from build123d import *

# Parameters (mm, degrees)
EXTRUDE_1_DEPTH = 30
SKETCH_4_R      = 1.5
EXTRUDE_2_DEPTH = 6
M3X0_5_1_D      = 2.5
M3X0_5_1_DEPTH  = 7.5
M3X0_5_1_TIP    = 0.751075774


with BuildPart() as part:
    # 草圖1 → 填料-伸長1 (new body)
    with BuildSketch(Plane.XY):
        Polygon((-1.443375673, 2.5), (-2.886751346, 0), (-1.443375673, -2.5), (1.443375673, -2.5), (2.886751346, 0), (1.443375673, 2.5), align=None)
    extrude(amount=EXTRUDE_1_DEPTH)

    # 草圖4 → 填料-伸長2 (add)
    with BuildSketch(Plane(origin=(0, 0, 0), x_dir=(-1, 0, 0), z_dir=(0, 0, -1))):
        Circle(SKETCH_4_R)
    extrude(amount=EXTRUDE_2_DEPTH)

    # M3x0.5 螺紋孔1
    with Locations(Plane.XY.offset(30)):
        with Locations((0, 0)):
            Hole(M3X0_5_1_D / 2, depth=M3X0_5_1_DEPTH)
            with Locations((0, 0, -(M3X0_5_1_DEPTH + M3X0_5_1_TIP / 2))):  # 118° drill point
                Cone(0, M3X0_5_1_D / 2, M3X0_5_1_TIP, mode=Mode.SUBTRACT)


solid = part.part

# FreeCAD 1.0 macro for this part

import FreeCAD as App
import Part
import Sketcher

V = App.Vector
Q = App.Units.Quantity

doc = App.newDocument("Part")
params = doc.addObject("Spreadsheet::Sheet", "Params")
for row, (alias, value) in enumerate([
    ("pad1_length", "30 mm"),
    ("sketch2_diameter", "3 mm"),
    ("pad2_length", "6 mm"),
    ("sketch3_diameter", "2.5 mm"),
    ("hole_diameter", "2.5 mm"),
    ("hole_depth", "7.5 mm"),
], start=1):
    params.set(f"A{row}", alias)
    params.set(f"B{row}", "=" + value)
    params.setAlias(f"B{row}", alias)

body = doc.addObject("PartDesign::Body", "Body")

# Sketch on XY plane
sketch1 = body.newObject("Sketcher::SketchObject", "Sketch")
sketch1.AttachmentSupport = (doc.getObject("XY_Plane"), [""])
sketch1.MapMode = "FlatFace"
sketch1.addGeometry([
    Part.LineSegment(V(-1.4, 2.5, 0), V(-2.9, 0, 0)),  # 0
    Part.LineSegment(V(-2.9, 0, 0), V(-1.4, -2.5, 0)),  # 1
    Part.LineSegment(V(-1.4, -2.5, 0), V(1.4, -2.5, 0)),  # 2
    Part.LineSegment(V(1.4, -2.5, 0), V(2.9, 0, 0)),  # 3
    Part.LineSegment(V(2.9, 0, 0), V(1.4, 2.5, 0)),  # 4
    Part.LineSegment(V(1.4, 2.5, 0), V(-1.4, 2.5, 0)),  # 5
], False)
sketch1.addConstraint([
    Sketcher.Constraint("Coincident", 0, 2, 1, 1),
    Sketcher.Constraint("Coincident", 1, 2, 2, 1),
    Sketcher.Constraint("Coincident", 2, 2, 3, 1),
    Sketcher.Constraint("Coincident", 3, 2, 4, 1),
    Sketcher.Constraint("Coincident", 4, 2, 5, 1),
    Sketcher.Constraint("Coincident", 5, 2, 0, 1),
    Sketcher.Constraint("Horizontal", 2),
    Sketcher.Constraint("Horizontal", 5),
    Sketcher.Constraint("Symmetric", 0, 2, 3, 2, -1, 1),
    Sketcher.Constraint("Symmetric", 1, 2, 4, 2, -1, 1),
    Sketcher.Constraint("PointOnObject", 0, 2, -1),
    Sketcher.Constraint("Parallel", 0, 3),
    Sketcher.Constraint("Vertical", 2, 2, 4, 2),
    Sketcher.Constraint("Angle", 0, Q("-120 deg")),
    Sketcher.Constraint("DistanceY", 2, 2, 4, 2, Q("5 mm")),
    Sketcher.Constraint("DistanceX", 2, 1, 2, 2, Q("2.886751 mm")),
])
pad1 = body.newObject("PartDesign::Pad", "Pad")
pad1.Profile = sketch1
pad1.setExpression("Length", "Params.pad1_length")

# Sketch on XY plane
sketch2 = body.newObject("Sketcher::SketchObject", "Sketch001")
sketch2.AttachmentSupport = (doc.getObject("XY_Plane"), [""])
sketch2.MapMode = "FlatFace"
sketch2.addGeometry(Part.Circle(V(0, 0, 0), V(0, 0, 1), 1.5), False)
sketch2.addConstraint([
    Sketcher.Constraint("Coincident", 0, 3, -1, 1),
    Sketcher.Constraint("Diameter", 0, Q("3 mm")),
])
sketch2.setExpression("Constraints[1]", "Params.sketch2_diameter")
pad2 = body.newObject("PartDesign::Pad", "Pad001")
pad2.Profile = sketch2
pad2.setExpression("Length", "Params.pad2_length")
pad2.Reversed = True

# Sketch on XY plane
sketch3 = body.newObject("Sketcher::SketchObject", "Sketch002")
sketch3.AttachmentSupport = (doc.getObject("XY_Plane"), [""])
sketch3.MapMode = "FlatFace"
sketch3.AttachmentOffset = App.Placement(V(0, 0, 30), App.Rotation())
sketch3.addGeometry(Part.Circle(V(0, 0, 0), V(0, 0, 1), 1.2), False)
sketch3.addConstraint([
    Sketcher.Constraint("Coincident", 0, 3, -1, 1),
    Sketcher.Constraint("Diameter", 0, Q("2.5 mm")),
])
sketch3.setExpression("Constraints[1]", "Params.sketch3_diameter")
doc.recompute()
hole = body.newObject("PartDesign::Hole", "Hole")
hole.Profile = sketch3
hole.ThreadType = "None"
hole.setExpression("Diameter", "Params.hole_diameter")
hole.DepthType = "Dimension"
hole.setExpression("Depth", "Params.hole_depth")
hole.DrillPoint = "Angled"
hole.DrillPointAngle = 118

doc.recompute()
